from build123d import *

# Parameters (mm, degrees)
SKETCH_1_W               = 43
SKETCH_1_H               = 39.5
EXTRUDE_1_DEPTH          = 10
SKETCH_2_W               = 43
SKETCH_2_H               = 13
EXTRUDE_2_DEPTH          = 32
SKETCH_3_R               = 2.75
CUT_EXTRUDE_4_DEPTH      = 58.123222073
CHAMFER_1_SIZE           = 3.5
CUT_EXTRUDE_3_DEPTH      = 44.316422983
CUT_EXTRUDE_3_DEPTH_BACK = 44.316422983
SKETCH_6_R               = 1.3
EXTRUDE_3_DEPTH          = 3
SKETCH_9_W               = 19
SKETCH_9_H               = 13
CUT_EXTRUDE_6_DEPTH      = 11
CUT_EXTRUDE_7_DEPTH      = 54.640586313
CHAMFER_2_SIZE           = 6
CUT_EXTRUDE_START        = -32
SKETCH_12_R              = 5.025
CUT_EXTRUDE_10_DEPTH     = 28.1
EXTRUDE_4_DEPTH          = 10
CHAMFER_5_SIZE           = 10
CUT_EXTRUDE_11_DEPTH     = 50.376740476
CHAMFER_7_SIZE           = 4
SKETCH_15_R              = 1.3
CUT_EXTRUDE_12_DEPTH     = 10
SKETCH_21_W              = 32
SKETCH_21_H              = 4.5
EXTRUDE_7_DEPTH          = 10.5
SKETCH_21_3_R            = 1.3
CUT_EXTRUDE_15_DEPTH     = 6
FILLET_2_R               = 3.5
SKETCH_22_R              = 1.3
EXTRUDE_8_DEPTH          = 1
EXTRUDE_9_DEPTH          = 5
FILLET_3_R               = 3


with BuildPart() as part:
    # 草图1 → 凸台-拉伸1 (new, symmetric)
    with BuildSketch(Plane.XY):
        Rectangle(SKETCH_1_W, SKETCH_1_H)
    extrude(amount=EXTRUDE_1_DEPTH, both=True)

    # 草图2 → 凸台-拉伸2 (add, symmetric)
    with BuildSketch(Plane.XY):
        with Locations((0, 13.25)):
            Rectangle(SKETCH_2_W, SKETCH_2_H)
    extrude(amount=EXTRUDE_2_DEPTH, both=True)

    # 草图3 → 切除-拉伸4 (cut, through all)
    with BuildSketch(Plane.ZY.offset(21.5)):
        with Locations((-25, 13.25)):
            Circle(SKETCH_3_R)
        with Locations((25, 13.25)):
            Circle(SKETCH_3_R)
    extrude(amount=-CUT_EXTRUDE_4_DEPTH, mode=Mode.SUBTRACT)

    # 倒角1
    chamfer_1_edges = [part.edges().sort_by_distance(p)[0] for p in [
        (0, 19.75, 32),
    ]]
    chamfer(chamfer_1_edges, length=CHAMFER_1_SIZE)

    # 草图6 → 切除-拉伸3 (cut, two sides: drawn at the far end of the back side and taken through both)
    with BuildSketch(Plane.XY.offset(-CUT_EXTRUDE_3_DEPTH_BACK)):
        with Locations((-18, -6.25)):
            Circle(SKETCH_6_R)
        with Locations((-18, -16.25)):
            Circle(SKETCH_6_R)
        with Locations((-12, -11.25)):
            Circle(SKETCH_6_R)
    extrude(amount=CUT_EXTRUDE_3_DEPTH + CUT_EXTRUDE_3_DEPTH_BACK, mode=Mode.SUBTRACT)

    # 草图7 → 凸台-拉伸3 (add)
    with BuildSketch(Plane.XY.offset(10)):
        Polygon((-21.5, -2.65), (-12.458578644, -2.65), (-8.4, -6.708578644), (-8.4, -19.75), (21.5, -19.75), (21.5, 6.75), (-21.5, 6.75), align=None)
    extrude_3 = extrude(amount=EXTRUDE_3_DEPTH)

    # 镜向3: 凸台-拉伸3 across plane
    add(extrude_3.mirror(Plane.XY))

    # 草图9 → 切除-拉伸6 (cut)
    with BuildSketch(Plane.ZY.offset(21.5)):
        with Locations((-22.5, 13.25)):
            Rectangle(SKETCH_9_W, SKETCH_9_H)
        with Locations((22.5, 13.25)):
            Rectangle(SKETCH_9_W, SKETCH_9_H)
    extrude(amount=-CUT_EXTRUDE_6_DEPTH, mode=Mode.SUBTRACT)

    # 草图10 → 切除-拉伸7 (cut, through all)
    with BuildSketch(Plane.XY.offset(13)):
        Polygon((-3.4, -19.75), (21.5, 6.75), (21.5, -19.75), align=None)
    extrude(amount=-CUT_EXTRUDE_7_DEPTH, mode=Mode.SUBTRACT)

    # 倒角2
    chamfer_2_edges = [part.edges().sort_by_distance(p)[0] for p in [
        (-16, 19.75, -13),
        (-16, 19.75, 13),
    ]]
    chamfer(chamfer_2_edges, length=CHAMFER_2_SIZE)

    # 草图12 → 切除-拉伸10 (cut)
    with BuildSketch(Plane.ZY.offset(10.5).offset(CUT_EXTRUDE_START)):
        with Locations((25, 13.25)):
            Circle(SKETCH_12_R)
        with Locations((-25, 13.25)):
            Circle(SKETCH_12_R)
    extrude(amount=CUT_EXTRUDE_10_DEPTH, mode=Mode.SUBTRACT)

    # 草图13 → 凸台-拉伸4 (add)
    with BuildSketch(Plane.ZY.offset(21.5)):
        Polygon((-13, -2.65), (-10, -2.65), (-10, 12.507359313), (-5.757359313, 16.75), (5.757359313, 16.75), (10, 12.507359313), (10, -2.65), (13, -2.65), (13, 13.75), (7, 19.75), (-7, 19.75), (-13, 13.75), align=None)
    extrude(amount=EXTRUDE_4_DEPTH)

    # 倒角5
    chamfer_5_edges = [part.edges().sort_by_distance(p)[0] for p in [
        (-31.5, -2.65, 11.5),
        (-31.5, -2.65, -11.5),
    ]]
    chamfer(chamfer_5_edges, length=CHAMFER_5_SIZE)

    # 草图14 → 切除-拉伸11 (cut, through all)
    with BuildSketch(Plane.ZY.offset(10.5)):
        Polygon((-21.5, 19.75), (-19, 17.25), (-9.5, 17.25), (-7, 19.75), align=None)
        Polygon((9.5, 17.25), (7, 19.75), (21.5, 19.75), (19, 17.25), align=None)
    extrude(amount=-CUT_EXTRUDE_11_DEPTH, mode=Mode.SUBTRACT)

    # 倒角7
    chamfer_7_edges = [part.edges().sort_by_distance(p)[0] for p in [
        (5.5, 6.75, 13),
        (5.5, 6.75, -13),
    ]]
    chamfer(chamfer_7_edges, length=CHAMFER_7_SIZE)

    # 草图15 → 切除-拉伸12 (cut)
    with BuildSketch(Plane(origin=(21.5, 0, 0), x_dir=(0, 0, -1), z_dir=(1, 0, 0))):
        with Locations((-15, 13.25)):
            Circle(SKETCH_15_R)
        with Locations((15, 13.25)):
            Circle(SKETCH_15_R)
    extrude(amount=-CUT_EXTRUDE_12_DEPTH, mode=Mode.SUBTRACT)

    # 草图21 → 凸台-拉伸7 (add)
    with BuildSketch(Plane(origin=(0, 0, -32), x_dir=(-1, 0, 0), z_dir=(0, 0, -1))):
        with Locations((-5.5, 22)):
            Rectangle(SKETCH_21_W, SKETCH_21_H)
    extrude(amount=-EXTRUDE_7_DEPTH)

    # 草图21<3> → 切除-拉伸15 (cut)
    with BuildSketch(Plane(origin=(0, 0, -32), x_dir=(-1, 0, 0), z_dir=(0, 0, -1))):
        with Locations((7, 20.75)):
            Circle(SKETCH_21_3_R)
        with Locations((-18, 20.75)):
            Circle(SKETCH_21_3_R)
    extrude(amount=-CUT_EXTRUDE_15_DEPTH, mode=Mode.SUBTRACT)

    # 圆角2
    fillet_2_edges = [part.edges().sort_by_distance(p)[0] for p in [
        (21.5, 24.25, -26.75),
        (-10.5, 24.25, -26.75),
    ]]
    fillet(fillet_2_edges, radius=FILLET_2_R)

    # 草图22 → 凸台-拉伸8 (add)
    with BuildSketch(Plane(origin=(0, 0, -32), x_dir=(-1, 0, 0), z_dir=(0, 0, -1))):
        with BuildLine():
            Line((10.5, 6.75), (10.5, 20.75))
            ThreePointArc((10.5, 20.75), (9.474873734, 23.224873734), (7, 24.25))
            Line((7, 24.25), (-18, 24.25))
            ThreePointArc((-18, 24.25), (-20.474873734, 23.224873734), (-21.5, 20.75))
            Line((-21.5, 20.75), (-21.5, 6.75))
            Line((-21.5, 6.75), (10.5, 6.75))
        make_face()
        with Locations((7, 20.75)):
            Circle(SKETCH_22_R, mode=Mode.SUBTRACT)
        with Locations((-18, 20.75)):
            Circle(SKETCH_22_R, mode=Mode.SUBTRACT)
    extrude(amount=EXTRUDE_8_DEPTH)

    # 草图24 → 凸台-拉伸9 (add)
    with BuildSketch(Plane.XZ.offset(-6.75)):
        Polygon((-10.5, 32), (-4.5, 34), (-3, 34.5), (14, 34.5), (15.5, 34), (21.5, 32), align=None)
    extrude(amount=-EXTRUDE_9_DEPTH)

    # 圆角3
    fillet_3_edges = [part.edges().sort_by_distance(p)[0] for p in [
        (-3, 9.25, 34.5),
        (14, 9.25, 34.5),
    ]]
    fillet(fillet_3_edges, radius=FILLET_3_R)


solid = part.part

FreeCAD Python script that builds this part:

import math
import FreeCAD as App
import Part
import Sketcher

V = App.Vector
Q = App.Units.Quantity


def edges_at(feature, points):
    """Names of the edges that pass closest to the given points."""
    edges = feature.Shape.Edges
    near = lambda p: min(range(len(edges)), key=lambda i: edges[i].distToShape(Part.Vertex(*p))[0])
    return sorted({f"Edge{near(p) + 1}" for p in points})

doc = App.newDocument("Part")
body = doc.addObject("PartDesign::Body", "Body")

# Sketch on XY plane
sketch1 = body.newObject("Sketcher::SketchObject", "Sketch")
sketch1.AttachmentSupport = (doc.getObject("XY_Plane"), [""])
sketch1.MapMode = "FlatFace"
sketch1.addGeometry([
    Part.LineSegment(V(-22, 20, 0), V(-22, -20, 0)),
    Part.LineSegment(V(-22, -20, 0), V(22, -20, 0)),
    Part.LineSegment(V(22, -20, 0), V(22, 20, 0)),
    Part.LineSegment(V(22, 20, 0), V(-22, 20, 0)),
], False)
sketch1.addConstraint([
    Sketcher.Constraint("Coincident", 0, 2, 1, 1),
    Sketcher.Constraint("Coincident", 1, 2, 2, 1),
    Sketcher.Constraint("Coincident", 2, 2, 3, 1),
    Sketcher.Constraint("Coincident", 3, 2, 0, 1),
    Sketcher.Constraint("Vertical", 0),
    Sketcher.Constraint("Horizontal", 1),
    Sketcher.Constraint("Vertical", 2),
    Sketcher.Constraint("Horizontal", 3),
    Sketcher.Constraint("Symmetric", 0, 2, 2, 2, -1, 1),
    Sketcher.Constraint("DistanceX", 1, 1, 1, 2, Q("43 mm")),
    Sketcher.Constraint("DistanceY", 0, 2, 0, 1, Q("39.5 mm")),
])
pad1 = body.newObject("PartDesign::Pad", "Pad")
pad1.Profile = sketch1
pad1.Length = 20
pad1.Midplane = True

# Sketch on XY plane
sketch2 = body.newObject("Sketcher::SketchObject", "Sketch001")
sketch2.AttachmentSupport = (doc.getObject("XY_Plane"), [""])
sketch2.MapMode = "FlatFace"
sketch2.addGeometry([
    Part.LineSegment(V(-22, 20, 0), V(-22, 7, 0)),
    Part.LineSegment(V(-22, 7, 0), V(22, 7, 0)),
    Part.LineSegment(V(22, 7, 0), V(22, 20, 0)),
    Part.LineSegment(V(22, 20, 0), V(-22, 20, 0)),
], False)
sketch2.addConstraint([
    Sketcher.Constraint("Coincident", 0, 2, 1, 1),
    Sketcher.Constraint("Coincident", 1, 2, 2, 1),
    Sketcher.Constraint("Coincident", 2, 2, 3, 1),
    Sketcher.Constraint("Coincident", 3, 2, 0, 1),
    Sketcher.Constraint("Vertical", 0),
    Sketcher.Constraint("Horizontal", 1),
    Sketcher.Constraint("Vertical", 2),
    Sketcher.Constraint("Horizontal", 3),
    Sketcher.Constraint("DistanceX", 1, 1, 1, 2, Q("43 mm")),
    Sketcher.Constraint("DistanceY", 0, 2, 0, 1, Q("13 mm")),
    Sketcher.Constraint("DistanceX", 0, 2, -1, 1, Q("21.5 mm")),
    Sketcher.Constraint("DistanceY", -1, 1, 0, 2, Q("6.75 mm")),
])
pad2 = body.newObject("PartDesign::Pad", "Pad001")
pad2.Profile = sketch2
pad2.Length = 64
pad2.Midplane = True

# Sketch on YZ plane
sketch3 = body.newObject("Sketcher::SketchObject", "Sketch002")
sketch3.AttachmentSupport = (doc.getObject("YZ_Plane"), [""])
sketch3.MapMode = "FlatFace"
sketch3.AttachmentOffset = App.Placement(V(0, 0, -21.5), App.Rotation())
sketch3.addGeometry([
    Part.Circle(V(13.2, -25, 0), V(0, 0, 1), 2.8),
    Part.Circle(V(13.2, 25, 0), V(0, 0, 1), 2.8),
], False)
sketch3.addConstraint([
    Sketcher.Constraint("Equal", 0, 1),
    Sketcher.Constraint("Symmetric", 0, 3, 1, 3, -1),
    Sketcher.Constraint("Diameter", 0, Q("5.5 mm")),
    Sketcher.Constraint("DistanceY", 0, 3, -1, 1, Q("25 mm")),
    Sketcher.Constraint("DistanceX", -1, 1, 0, 3, Q("13.25 mm")),
])
pocket1 = body.newObject("PartDesign::Pocket", "Pocket")
pocket1.Profile = sketch3
pocket1.Type = "ThroughAll"
pocket1.Reversed = True
doc.recompute()

chamfer = body.newObject("PartDesign::Chamfer", "Chamfer")
chamfer.Base = (pocket1, edges_at(pocket1, [(0, 19.75, 32)]))
chamfer.Size = 3.5

# Sketch on XY plane
sketch4 = body.newObject("Sketcher::SketchObject", "Sketch003")
sketch4.AttachmentSupport = (doc.getObject("XY_Plane"), [""])
sketch4.MapMode = "FlatFace"
sketch4.addGeometry([
    Part.Circle(V(-18, -6.2, 0), V(0, 0, 1), 1.3),
    Part.Circle(V(-18, -16.2, 0), V(0, 0, 1), 1.3),
    Part.Circle(V(-12, -11.2, 0), V(0, 0, 1), 1.3),
], False)
sketch4.addConstraint([
    Sketcher.Constraint("Equal", 0, 1),
    Sketcher.Constraint("Equal", 1, 2),
    Sketcher.Constraint("Vertical", 0, 3, 1, 3),
    Sketcher.Constraint("Diameter", 0, Q("2.6 mm")),
    Sketcher.Constraint("DistanceX", 0, 3, -1, 1, Q("18 mm")),
    Sketcher.Constraint("DistanceX", 2, 3, -1, 1, Q("12 mm")),
    Sketcher.Constraint("DistanceY", 1, 3, 0, 3, Q("10 mm")),
    Sketcher.Constraint("DistanceY", 2, 3, 0, 3, Q("5 mm")),
    Sketcher.Constraint("DistanceY", 0, 3, -1, 1, Q("6.25 mm")),
])
pocket2 = body.newObject("PartDesign::Pocket", "Pocket001")
pocket2.Profile = sketch4
pocket2.Type = "ThroughAll"
pocket2.Midplane = True

# Sketch on XY plane
sketch5 = body.newObject("Sketcher::SketchObject", "Sketch004")
sketch5.AttachmentSupport = (doc.getObject("XY_Plane"), [""])
sketch5.MapMode = "FlatFace"
sketch5.AttachmentOffset = App.Placement(V(0, 0, 10), App.Rotation())
sketch5.addGeometry([
    Part.LineSegment(V(-22, -3, 0), V(-12, -3, 0)),  # 0
    Part.LineSegment(V(-12, -3, 0), V(-8, -7, 0)),  # 1
    Part.LineSegment(V(-8, -7, 0), V(-8, -20, 0)),  # 2
    Part.LineSegment(V(-8, -20, 0), V(22, -20, 0)),  # 3
    Part.LineSegment(V(22, -20, 0), V(22, 7, 0)),  # 4
    Part.LineSegment(V(22, 7, 0), V(-22, 7, 0)),  # 5
    Part.LineSegment(V(-22, 7, 0), V(-22, -3, 0)),  # 6
], False)
sketch5.addConstraint([
    Sketcher.Constraint("Coincident", 0, 2, 1, 1),
    Sketcher.Constraint("Coincident", 1, 2, 2, 1),
    Sketcher.Constraint("Coincident", 2, 2, 3, 1),
    Sketcher.Constraint("Coincident", 3, 2, 4, 1),
    Sketcher.Constraint("Coincident", 4, 2, 5, 1),
    Sketcher.Constraint("Coincident", 5, 2, 6, 1),
    Sketcher.Constraint("Coincident", 6, 2, 0, 1),
    Sketcher.Constraint("Horizontal", 0),
    Sketcher.Constraint("Vertical", 2),
    Sketcher.Constraint("Horizontal", 3),
    Sketcher.Constraint("Vertical", 4),
    Sketcher.Constraint("Horizontal", 5),
    Sketcher.Constraint("Vertical", 6),
    Sketcher.Constraint("DistanceX", 5, 2, 5, 1, Q("43 mm")),
    Sketcher.Constraint("Angle", 1, Q("-45 deg")),
    Sketcher.Constraint("DistanceX", 3, 1, 3, 2, Q("29.9 mm")),
    Sketcher.Constraint("DistanceY", 4, 1, 4, 2, Q("26.5 mm")),
    Sketcher.Constraint("DistanceY", 6, 2, 6, 1, Q("9.4 mm")),
    Sketcher.Constraint("DistanceX", 1, 2, -1, 1, Q("8.4 mm")),
    Sketcher.Constraint("DistanceY", 0, 2, -1, 1, Q("2.65 mm")),
    Sketcher.Constraint("DistanceX", 0, 1, 0, 2, Q("9.041421 mm")),
])
pad3 = body.newObject("PartDesign::Pad", "Pad002")
pad3.Profile = sketch5
pad3.Length = 3
doc.recompute()

mirrored = body.newObject("PartDesign::Mirrored", "Mirrored")
mirrored.Originals = [pad3]
mirrored.MirrorPlane = (doc.getObject("XY_Plane"), [""])
body.Tip = mirrored

# Sketch on YZ plane
sketch6 = body.newObject("Sketcher::SketchObject", "Sketch005")
sketch6.AttachmentSupport = (doc.getObject("YZ_Plane"), [""])
sketch6.MapMode = "FlatFace"
sketch6.AttachmentOffset = App.Placement(V(0, 0, -21.5), App.Rotation())
sketch6.addGeometry([
    Part.LineSegment(V(20, -32, 0), V(7, -32, 0)),  # 0
    Part.LineSegment(V(7, -32, 0), V(7, -13, 0)),  # 1
    Part.LineSegment(V(7, -13, 0), V(20, -13, 0)),  # 2
    Part.LineSegment(V(20, -13, 0), V(20, -32, 0)),  # 3
    Part.LineSegment(V(20, 13, 0), V(7, 13, 0)),  # 4
    Part.LineSegment(V(7, 13, 0), V(7, 32, 0)),  # 5
    Part.LineSegment(V(7, 32, 0), V(20, 32, 0)),  # 6
    Part.LineSegment(V(20, 32, 0), V(20, 13, 0)),  # 7
], False)
sketch6.addConstraint([
    Sketcher.Constraint("Coincident", 0, 2, 1, 1),
    Sketcher.Constraint("Coincident", 1, 2, 2, 1),
    Sketcher.Constraint("Coincident", 2, 2, 3, 1),
    Sketcher.Constraint("Coincident", 3, 2, 0, 1),
    Sketcher.Constraint("Coincident", 4, 2, 5, 1),
    Sketcher.Constraint("Coincident", 5, 2, 6, 1),
    Sketcher.Constraint("Coincident", 6, 2, 7, 1),
    Sketcher.Constraint("Coincident", 7, 2, 4, 1),
    Sketcher.Constraint("Horizontal", 0),
    Sketcher.Constraint("Vertical", 1),
    Sketcher.Constraint("Horizontal", 2),
    Sketcher.Constraint("Vertical", 3),
    Sketcher.Constraint("Horizontal", 4),
    Sketcher.Constraint("Vertical", 5),
    Sketcher.Constraint("Horizontal", 6),
    Sketcher.Constraint("Vertical", 7),
    Sketcher.Constraint("Symmetric", 1, 2, 4, 2, -1),
    Sketcher.Constraint("Symmetric", 3, 2, 6, 2, -1),
    Sketcher.Constraint("DistanceX", 0, 2, 0, 1, Q("13 mm")),
    Sketcher.Constraint("DistanceY", 1, 1, 1, 2, Q("19 mm")),
    Sketcher.Constraint("DistanceY", 0, 2, -1, 1, Q("32 mm")),
    Sketcher.Constraint("DistanceX", -1, 1, 0, 2, Q("6.75 mm")),
])
pocket3 = body.newObject("PartDesign::Pocket", "Pocket002")
pocket3.Profile = sketch6
pocket3.Length = 11
pocket3.Reversed = True

# Sketch on XY plane
sketch7 = body.newObject("Sketcher::SketchObject", "Sketch006")
sketch7.AttachmentSupport = (doc.getObject("XY_Plane"), [""])
sketch7.MapMode = "FlatFace"
sketch7.AttachmentOffset = App.Placement(V(0, 0, 13), App.Rotation())
sketch7.addGeometry([
    Part.LineSegment(V(22, 7, 0), V(-3, -20, 0)),
    Part.LineSegment(V(-3, -20, 0), V(22, -20, 0)),
    Part.LineSegment(V(22, -20, 0), V(22, 7, 0)),
], False)
sketch7.addConstraint([
    Sketcher.Constraint("Coincident", 0, 2, 1, 1),
    Sketcher.Constraint("Coincident", 1, 2, 2, 1),
    Sketcher.Constraint("Coincident", 2, 2, 0, 1),
    Sketcher.Constraint("Horizontal", 1),
    Sketcher.Constraint("Vertical", 2),
    Sketcher.Constraint("DistanceX", 1, 1, 1, 2, Q("24.9 mm")),
    Sketcher.Constraint("DistanceY", 2, 1, 2, 2, Q("26.5 mm")),
    Sketcher.Constraint("DistanceX", 0, 2, -1, 1, Q("3.4 mm")),
    Sketcher.Constraint("DistanceY", 0, 2, -1, 1, Q("19.75 mm")),
])
pocket4 = body.newObject("PartDesign::Pocket", "Pocket003")
pocket4.Profile = sketch7
pocket4.Type = "ThroughAll"
doc.recompute()

chamfer2 = body.newObject("PartDesign::Chamfer", "Chamfer001")
chamfer2.Base = (pocket4, edges_at(pocket4, [(-16, 19.75, -13), (-16, 19.75, 13)]))
chamfer2.Size = 6

# Sketch on YZ plane
sketch8 = body.newObject("Sketcher::SketchObject", "Sketch007")
sketch8.AttachmentSupport = (doc.getObject("YZ_Plane"), [""])
sketch8.MapMode = "FlatFace"
sketch8.AttachmentOffset = App.Placement(V(0, 0, 21.5), App.Rotation())
sketch8.addGeometry([
    Part.Circle(V(13, 25, 0), V(0, 0, 1), 5),
    Part.Circle(V(13, -25, 0), V(0, 0, 1), 5),
], False)
sketch8.addConstraint([
    Sketcher.Constraint("Equal", 0, 1),
    Sketcher.Constraint("Symmetric", 0, 3, 1, 3, -1),
    Sketcher.Constraint("Diameter", 0, Q("10.05 mm")),
    Sketcher.Constraint("DistanceY", -1, 1, 0, 3, Q("25 mm")),
    Sketcher.Constraint("DistanceX", -1, 1, 0, 3, Q("13.25 mm")),
])
pocket5 = body.newObject("PartDesign::Pocket", "Pocket004")
pocket5.Profile = sketch8
pocket5.Length = 28.1

# Sketch on YZ plane
sketch9 = body.newObject("Sketcher::SketchObject", "Sketch008")
sketch9.AttachmentSupport = (doc.getObject("YZ_Plane"), [""])
sketch9.MapMode = "FlatFace"
sketch9.AttachmentOffset = App.Placement(V(0, 0, -21.5), App.Rotation())
sketch9.addGeometry([
    Part.LineSegment(V(-2.6, -13, 0), V(-2.6, -10, 0)),  # 0
    Part.LineSegment(V(-2.6, -10, 0), V(12.5, -10, 0)),  # 1
    Part.LineSegment(V(12.5, -10, 0), V(16.8, -5.8, 0)),  # 2
    Part.LineSegment(V(16.8, -5.8, 0), V(16.8, 5.8, 0)),  # 3
    Part.LineSegment(V(16.8, 5.8, 0), V(12.5, 10, 0)),  # 4
    Part.LineSegment(V(12.5, 10, 0), V(-2.6, 10, 0)),  # 5
    Part.LineSegment(V(-2.6, 10, 0), V(-2.6, 13, 0)),  # 6
    Part.LineSegment(V(-2.6, 13, 0), V(13.8, 13, 0)),  # 7
    Part.LineSegment(V(13.8, 13, 0), V(19.8, 7, 0)),  # 8
    Part.LineSegment(V(19.8, 7, 0), V(19.8, -7, 0)),  # 9
    Part.LineSegment(V(19.8, -7, 0), V(13.8, -13, 0)),  # 10
    Part.LineSegment(V(13.8, -13, 0), V(-2.6, -13, 0)),  # 11
], False)
sketch9.addConstraint([
    Sketcher.Constraint("Coincident", 0, 2, 1, 1),
    Sketcher.Constraint("Coincident", 1, 2, 2, 1),
    Sketcher.Constraint("Coincident", 2, 2, 3, 1),
    Sketcher.Constraint("Coincident", 3, 2, 4, 1),
    Sketcher.Constraint("Coincident", 4, 2, 5, 1),
    Sketcher.Constraint("Coincident", 5, 2, 6, 1),
    Sketcher.Constraint("Coincident", 6, 2, 7, 1),
    Sketcher.Constraint("Coincident", 7, 2, 8, 1),
    Sketcher.Constraint("Coincident", 8, 2, 9, 1),
    Sketcher.Constraint("Coincident", 9, 2, 10, 1),
    Sketcher.Constraint("Coincident", 10, 2, 11, 1),
    Sketcher.Constraint("Coincident", 11, 2, 0, 1),
    Sketcher.Constraint("Vertical", 0),
    Sketcher.Constraint("Horizontal", 1),
    Sketcher.Constraint("Vertical", 3),
    Sketcher.Constraint("Horizontal", 5),
    Sketcher.Constraint("Vertical", 6),
    Sketcher.Constraint("Horizontal", 7),
    Sketcher.Constraint("Vertical", 9),
    Sketcher.Constraint("Horizontal", 11),
    Sketcher.Constraint("Symmetric", 1, 2, 4, 2, -1),
    Sketcher.Constraint("Symmetric", 7, 2, 10, 2, -1),
    Sketcher.Constraint("Perpendicular", 2, 4),
    Sketcher.Constraint("Parallel", 4, 8),
    Sketcher.Constraint("Perpendicular", 8, 10),
    Sketcher.Constraint("Vertical", 0, 2, 5, 2),
    Sketcher.Constraint("Equal", 2, 4),
    Sketcher.Constraint("DistanceY", 0, 1, 0, 2, Q("3 mm")),
    Sketcher.Constraint("DistanceY", 9, 2, 9, 1, Q("14 mm")),
    Sketcher.Constraint("Distance", 2, Q("6 mm")),
    Sketcher.Constraint("DistanceX", 7, 1, 7, 2, Q("16.4 mm")),
    Sketcher.Constraint("DistanceY", 0, 2, -1, 1, Q("10 mm")),
    Sketcher.Constraint("DistanceX", 7, 2, 3, 2, Q("3 mm")),
    Sketcher.Constraint("DistanceX", 0, 2, -1, 1, Q("2.65 mm")),
])
pad4 = body.newObject("PartDesign::Pad", "Pad003")
pad4.Profile = sketch9
pad4.Length = 10
pad4.Reversed = True
doc.recompute()

chamfer3 = body.newObject("PartDesign::Chamfer", "Chamfer002")
chamfer3.Base = (pad4, edges_at(pad4, [(-31.5, -2.65, 11.5), (-31.5, -2.65, -11.5)]))
chamfer3.Size = 10

# Sketch on YZ plane
sketch10 = body.newObject("Sketcher::SketchObject", "Sketch009")
sketch10.AttachmentSupport = (doc.getObject("YZ_Plane"), [""])
sketch10.MapMode = "FlatFace"
sketch10.AttachmentOffset = App.Placement(V(0, 0, -10.5), App.Rotation())
sketch10.addGeometry([
    Part.LineSegment(V(19.8, -21.5, 0), V(17.2, -19, 0)),  # 0
    Part.LineSegment(V(17.2, -19, 0), V(17.2, -9.5, 0)),  # 1
    Part.LineSegment(V(17.2, -9.5, 0), V(19.8, -7, 0)),  # 2
    Part.LineSegment(V(19.8, -7, 0), V(19.8, -21.5, 0)),  # 3
    Part.LineSegment(V(19.8, 7, 0), V(17.2, 9.5, 0)),  # 4
    Part.LineSegment(V(17.2, 9.5, 0), V(17.2, 19, 0)),  # 5
    Part.LineSegment(V(17.2, 19, 0), V(19.8, 21.5, 0)),  # 6
    Part.LineSegment(V(19.8, 21.5, 0), V(19.8, 7, 0)),  # 7
], False)
sketch10.addConstraint([
    Sketcher.Constraint("Coincident", 0, 2, 1, 1),
    Sketcher.Constraint("Coincident", 1, 2, 2, 1),
    Sketcher.Constraint("Coincident", 2, 2, 3, 1),
    Sketcher.Constraint("Coincident", 3, 2, 0, 1),
    Sketcher.Constraint("Coincident", 4, 2, 5, 1),
    Sketcher.Constraint("Coincident", 5, 2, 6, 1),
    Sketcher.Constraint("Coincident", 6, 2, 7, 1),
    Sketcher.Constraint("Coincident", 7, 2, 4, 1),
    Sketcher.Constraint("Vertical", 1),
    Sketcher.Constraint("Vertical", 3),
    Sketcher.Constraint("Vertical", 5),
    Sketcher.Constraint("Vertical", 7),
    Sketcher.Constraint("Symmetric", 1, 2, 4, 2, -1),
    Sketcher.Constraint("Symmetric", 3, 2, 6, 2, -1),
    Sketcher.Constraint("Perpendicular", 0, 2),
    Sketcher.Constraint("Perpendicular", 2, 4),
    Sketcher.Constraint("Perpendicular", 4, 6),
    Sketcher.Constraint("Equal", 1, 5),
    Sketcher.Constraint("DistanceY", 1, 1, 1, 2, Q("9.5 mm")),
    Sketcher.Constraint("DistanceY", 3, 2, 3, 1, Q("14.5 mm")),
    Sketcher.Constraint("DistanceY", 0, 2, -1, 1, Q("19 mm")),
    Sketcher.Constraint("DistanceX", -1, 1, 0, 2, Q("17.25 mm")),
])
pocket6 = body.newObject("PartDesign::Pocket", "Pocket005")
pocket6.Profile = sketch10
pocket6.Type = "ThroughAll"
pocket6.Reversed = True
doc.recompute()

chamfer4 = body.newObject("PartDesign::Chamfer", "Chamfer003")
chamfer4.Base = (pocket6, edges_at(pocket6, [(5.5, 6.75, 13), (5.5, 6.75, -13)]))
chamfer4.Size = 4

# Sketch on YZ plane
sketch11 = body.newObject("Sketcher::SketchObject", "Sketch010")
sketch11.AttachmentSupport = (doc.getObject("YZ_Plane"), [""])
sketch11.MapMode = "FlatFace"
sketch11.AttachmentOffset = App.Placement(V(0, 0, 21.5), App.Rotation())
sketch11.addGeometry([
    Part.Circle(V(13.2, 15, 0), V(0, 0, 1), 1.3),
    Part.Circle(V(13.2, -15, 0), V(0, 0, 1), 1.3),
], False)
sketch11.addConstraint([
    Sketcher.Constraint("Equal", 0, 1),
    Sketcher.Constraint("Symmetric", 0, 3, 1, 3, -1),
    Sketcher.Constraint("Diameter", 0, Q("2.6 mm")),
    Sketcher.Constraint("DistanceY", -1, 1, 0, 3, Q("15 mm")),
    Sketcher.Constraint("DistanceX", -1, 1, 0, 3, Q("13.25 mm")),
])
pocket7 = body.newObject("PartDesign::Pocket", "Pocket006")
pocket7.Profile = sketch11
pocket7.Length = 10

# Sketch on XY plane
sketch12 = body.newObject("Sketcher::SketchObject", "Sketch011")
sketch12.AttachmentSupport = (doc.getObject("XY_Plane"), [""])
sketch12.MapMode = "FlatFace"
sketch12.AttachmentOffset = App.Placement(V(0, 0, -32), App.Rotation())
sketch12.addGeometry([
    Part.LineSegment(V(21.5, 24.2, 0), V(21.5, 19.8, 0)),
    Part.LineSegment(V(21.5, 19.8, 0), V(-10.5, 19.8, 0)),
    Part.LineSegment(V(-10.5, 19.8, 0), V(-10.5, 24.2, 0)),
    Part.LineSegment(V(-10.5, 24.2, 0), V(21.5, 24.2, 0)),
], False)
sketch12.addConstraint([
    Sketcher.Constraint("Coincident", 0, 2, 1, 1),
    Sketcher.Constraint("Coincident", 1, 2, 2, 1),
    Sketcher.Constraint("Coincident", 2, 2, 3, 1),
    Sketcher.Constraint("Coincident", 3, 2, 0, 1),
    Sketcher.Constraint("Vertical", 0),
    Sketcher.Constraint("Horizontal", 1),
    Sketcher.Constraint("Vertical", 2),
    Sketcher.Constraint("Horizontal", 3),
    Sketcher.Constraint("DistanceX", 1, 2, 1, 1, Q("32 mm")),
    Sketcher.Constraint("DistanceY", 0, 2, 0, 1, Q("4.5 mm")),
    Sketcher.Constraint("DistanceX", -1, 1, 0, 2, Q("21.5 mm")),
    Sketcher.Constraint("DistanceY", -1, 1, 0, 2, Q("19.75 mm")),
])
pad5 = body.newObject("PartDesign::Pad", "Pad004")
pad5.Profile = sketch12
pad5.Length = 10.5

# Sketch on XY plane
sketch13 = body.newObject("Sketcher::SketchObject", "Sketch012")
sketch13.AttachmentSupport = (doc.getObject("XY_Plane"), [""])
sketch13.MapMode = "FlatFace"
sketch13.AttachmentOffset = App.Placement(V(0, 0, -32), App.Rotation())
sketch13.addGeometry([
    Part.Circle(V(-7, 20.8, 0), V(0, 0, 1), 1.3),
    Part.Circle(V(18, 20.8, 0), V(0, 0, 1), 1.3),
], False)
sketch13.addConstraint([
    Sketcher.Constraint("Equal", 0, 1),
    Sketcher.Constraint("Horizontal", 0, 3, 1, 3),
    Sketcher.Constraint("Diameter", 0, Q("2.6 mm")),
    Sketcher.Constraint("DistanceX", 0, 3, -1, 1, Q("7 mm")),
    Sketcher.Constraint("DistanceX", -1, 1, 1, 3, Q("18 mm")),
    Sketcher.Constraint("DistanceY", -1, 1, 0, 3, Q("20.75 mm")),
])
pocket8 = body.newObject("PartDesign::Pocket", "Pocket007")
pocket8.Profile = sketch13
pocket8.Length = 6
pocket8.Reversed = True
doc.recompute()

fillet = body.newObject("PartDesign::Fillet", "Fillet")
fillet.Base = (pocket8, edges_at(pocket8, [(21.5, 24.25, -26.75), (-10.5, 24.25, -26.75)]))
fillet.Radius = 3.5

# Sketch on XY plane
sketch14 = body.newObject("Sketcher::SketchObject", "Sketch013")
sketch14.AttachmentSupport = (doc.getObject("XY_Plane"), [""])
sketch14.MapMode = "FlatFace"
sketch14.AttachmentOffset = App.Placement(V(0, 0, -32), App.Rotation())
sketch14.addGeometry([
    Part.LineSegment(V(-10.5, 6.8, 0), V(-10.5, 20.8, 0)),  # 0
    Part.ArcOfCircle(Part.Circle(V(-7, 20.7, 0), V(0, 0, 1), 3.5), math.radians(90), math.radians(180)),  # 1
    Part.LineSegment(V(-7, 24.2, 0), V(18, 24.2, 0)),  # 2
    Part.ArcOfCircle(Part.Circle(V(18, 20.7, 0), V(0, 0, 1), 3.5), math.radians(0), math.radians(90)),  # 3
    Part.LineSegment(V(21.5, 20.8, 0), V(21.5, 6.8, 0)),  # 4
    Part.LineSegment(V(21.5, 6.8, 0), V(-10.5, 6.8, 0)),  # 5
    Part.Circle(V(18, 20.8, 0), V(0, 0, 1), 1.3),  # 6
    Part.Circle(V(-7, 20.8, 0), V(0, 0, 1), 1.3),  # 7
], False)
sketch14.addConstraint([
    Sketcher.Constraint("Tangent", 0, 2, 1, 2),
    Sketcher.Constraint("Tangent", 1, 1, 2, 1),
    Sketcher.Constraint("Tangent", 2, 2, 3, 2),
    Sketcher.Constraint("Tangent", 3, 1, 4, 1),
    Sketcher.Constraint("Coincident", 4, 2, 5, 1),
    Sketcher.Constraint("Coincident", 5, 2, 0, 1),
    Sketcher.Constraint("Vertical", 0),
    Sketcher.Constraint("Horizontal", 2),
    Sketcher.Constraint("Vertical", 4),
    Sketcher.Constraint("Horizontal", 5),
    Sketcher.Constraint("Coincident", 6, 3, 3, 3),
    Sketcher.Constraint("Coincident", 7, 3, 1, 3),
    Sketcher.Constraint("Equal", 1, 3),
    Sketcher.Constraint("Equal", 6, 7),
    Sketcher.Constraint("Diameter", 6, Q("2.6 mm")),
    Sketcher.Constraint("Radius", 1, Q("3.5 mm")),
    Sketcher.Constraint("DistanceX", 2, 1, 2, 2, Q("25 mm")),
    Sketcher.Constraint("DistanceY", 0, 1, 0, 2, Q("14 mm")),
    Sketcher.Constraint("DistanceX", 1, 3, -1, 1, Q("7 mm")),
    Sketcher.Constraint("DistanceY", -1, 1, 1, 3, Q("20.75 mm")),
])
pad6 = body.newObject("PartDesign::Pad", "Pad005")
pad6.Profile = sketch14
pad6.Length = 1
pad6.Reversed = True

# Sketch on XZ plane
sketch15 = body.newObject("Sketcher::SketchObject", "Sketch014")
sketch15.AttachmentSupport = (doc.getObject("XZ_Plane"), [""])
sketch15.MapMode = "FlatFace"
sketch15.AttachmentOffset = App.Placement(V(0, 0, -6.75), App.Rotation())
sketch15.addGeometry([
    Part.LineSegment(V(-3, 34, 0), V(-10, 32, 0)),
    Part.LineSegment(V(-10, 32, 0), V(22, 32, 0)),
    Part.LineSegment(V(22, 32, 0), V(14, 34, 0)),
    Part.LineSegment(V(14, 34, 0), V(-3, 34, 0)),
], False)
sketch15.addConstraint([
    Sketcher.Constraint("Coincident", 0, 2, 1, 1),
    Sketcher.Constraint("Coincident", 1, 2, 2, 1),
    Sketcher.Constraint("Coincident", 2, 2, 3, 1),
    Sketcher.Constraint("Coincident", 3, 2, 0, 1),
    Sketcher.Constraint("Horizontal", 1),
    Sketcher.Constraint("Horizontal", 3),
    Sketcher.Constraint("Equal", 0, 2),
    Sketcher.Constraint("DistanceX", 1, 1, 1, 2, Q("32 mm")),
    Sketcher.Constraint("DistanceX", 3, 2, 3, 1, Q("17 mm")),
    Sketcher.Constraint("DistanceY", -1, 1, 0, 2, Q("32 mm")),
    Sketcher.Constraint("DistanceX", -1, 1, 2, 2, Q("14 mm")),
    Sketcher.Constraint("DistanceY", -1, 1, 2, 2, Q("34.5 mm")),
])
pad7 = body.newObject("PartDesign::Pad", "Pad006")
pad7.Profile = sketch15
pad7.Length = 5
pad7.Reversed = True
doc.recompute()

fillet2 = body.newObject("PartDesign::Fillet", "Fillet001")
fillet2.Base = (pad7, edges_at(pad7, [(-3, 9.25, 34.5), (14, 9.25, 34.5)]))
fillet2.Radius = 3

doc.recompute()
